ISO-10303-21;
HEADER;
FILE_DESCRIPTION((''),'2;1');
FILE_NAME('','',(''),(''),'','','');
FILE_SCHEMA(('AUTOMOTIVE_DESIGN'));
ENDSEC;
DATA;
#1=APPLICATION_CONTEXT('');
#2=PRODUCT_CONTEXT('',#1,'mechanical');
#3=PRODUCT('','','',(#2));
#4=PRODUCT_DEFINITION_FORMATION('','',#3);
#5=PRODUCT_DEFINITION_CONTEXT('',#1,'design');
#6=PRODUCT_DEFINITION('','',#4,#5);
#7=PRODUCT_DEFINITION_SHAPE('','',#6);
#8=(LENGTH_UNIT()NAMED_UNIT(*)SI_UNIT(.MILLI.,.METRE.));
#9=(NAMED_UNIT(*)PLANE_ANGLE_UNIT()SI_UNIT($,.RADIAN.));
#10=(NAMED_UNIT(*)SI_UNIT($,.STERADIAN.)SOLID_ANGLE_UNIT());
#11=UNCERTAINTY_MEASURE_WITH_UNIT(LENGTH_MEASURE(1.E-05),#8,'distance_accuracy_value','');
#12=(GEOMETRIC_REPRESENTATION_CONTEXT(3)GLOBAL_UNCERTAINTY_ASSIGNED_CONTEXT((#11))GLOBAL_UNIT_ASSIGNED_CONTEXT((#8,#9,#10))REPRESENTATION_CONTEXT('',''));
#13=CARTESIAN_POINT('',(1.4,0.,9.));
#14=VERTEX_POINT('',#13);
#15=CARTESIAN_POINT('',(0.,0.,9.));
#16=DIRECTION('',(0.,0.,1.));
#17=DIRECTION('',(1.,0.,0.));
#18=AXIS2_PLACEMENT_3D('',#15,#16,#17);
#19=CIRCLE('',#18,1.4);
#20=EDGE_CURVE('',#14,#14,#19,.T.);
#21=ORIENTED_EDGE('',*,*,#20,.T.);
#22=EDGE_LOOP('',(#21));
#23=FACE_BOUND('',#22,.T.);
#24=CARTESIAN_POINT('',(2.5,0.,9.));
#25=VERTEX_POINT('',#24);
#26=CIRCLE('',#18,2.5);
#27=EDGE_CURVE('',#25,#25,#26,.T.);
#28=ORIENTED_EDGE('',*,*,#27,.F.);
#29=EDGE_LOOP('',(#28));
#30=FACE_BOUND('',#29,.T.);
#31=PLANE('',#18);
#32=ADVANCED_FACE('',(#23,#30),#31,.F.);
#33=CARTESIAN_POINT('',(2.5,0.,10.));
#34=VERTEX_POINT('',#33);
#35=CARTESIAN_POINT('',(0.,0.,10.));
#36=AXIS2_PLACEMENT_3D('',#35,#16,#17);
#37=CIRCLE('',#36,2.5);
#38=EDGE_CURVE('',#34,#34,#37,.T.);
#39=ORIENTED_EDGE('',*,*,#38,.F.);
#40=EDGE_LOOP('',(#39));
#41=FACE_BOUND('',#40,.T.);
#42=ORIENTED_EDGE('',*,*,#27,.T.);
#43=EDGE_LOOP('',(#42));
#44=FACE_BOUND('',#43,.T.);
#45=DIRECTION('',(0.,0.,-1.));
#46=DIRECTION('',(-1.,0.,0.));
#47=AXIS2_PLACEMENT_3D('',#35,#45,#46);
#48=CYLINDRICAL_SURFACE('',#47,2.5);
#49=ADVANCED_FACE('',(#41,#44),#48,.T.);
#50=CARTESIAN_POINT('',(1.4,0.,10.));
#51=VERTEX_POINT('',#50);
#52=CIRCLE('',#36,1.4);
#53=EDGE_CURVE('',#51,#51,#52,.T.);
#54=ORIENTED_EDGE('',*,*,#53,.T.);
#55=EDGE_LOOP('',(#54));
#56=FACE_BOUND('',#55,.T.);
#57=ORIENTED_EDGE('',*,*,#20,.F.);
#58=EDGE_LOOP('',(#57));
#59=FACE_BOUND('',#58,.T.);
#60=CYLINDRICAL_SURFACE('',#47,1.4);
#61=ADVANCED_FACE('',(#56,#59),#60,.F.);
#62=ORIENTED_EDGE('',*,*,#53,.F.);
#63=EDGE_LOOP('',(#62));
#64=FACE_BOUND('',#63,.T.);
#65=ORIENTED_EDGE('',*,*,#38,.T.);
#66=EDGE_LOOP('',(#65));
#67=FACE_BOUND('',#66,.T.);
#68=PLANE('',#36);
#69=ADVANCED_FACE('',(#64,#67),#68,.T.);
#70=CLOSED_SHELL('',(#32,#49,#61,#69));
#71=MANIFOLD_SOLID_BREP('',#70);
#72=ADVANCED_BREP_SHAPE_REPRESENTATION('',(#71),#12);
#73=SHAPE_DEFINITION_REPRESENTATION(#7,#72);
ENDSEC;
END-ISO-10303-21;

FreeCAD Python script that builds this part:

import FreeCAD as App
import Part
import Sketcher

V = App.Vector
Q = App.Units.Quantity

doc = App.newDocument("Part")
params = doc.addObject("Spreadsheet::Sheet", "Params")
for row, (alias, value) in enumerate([
    ("sketch1_diameter", "5 mm"),
    ("sketch1_diameter2", "2.8 mm"),
    ("pad1_length", "1 mm"),
], start=1):
    params.set(f"A{row}", alias)
    params.set(f"B{row}", "=" + value)
    params.setAlias(f"B{row}", alias)

body = doc.addObject("PartDesign::Body", "Body")

# Sketch on XY plane
sketch1 = doc.addObject("Sketcher::SketchObject", "Sketch")
body.addObject(sketch1)
sketch1.AttachmentSupport = (doc.XY_Plane, [""])
sketch1.MapMode = "FlatFace"
sketch1.AttachmentOffset = App.Placement(V(0, 0, 9), App.Rotation())
sketch1.addGeometry(Part.Circle(V(0, 0, 0), V(0, 0, 1), 2.5), False)
sketch1.addGeometry(Part.Circle(V(0, 0, 0), V(0, 0, 1), 1.4), False)
sketch1.addConstraint(Sketcher.Constraint("Coincident", 0, 3, -1, 1))
sketch1.addConstraint(Sketcher.Constraint("Coincident", 1, 3, -1, 1))
sketch1.addConstraint(Sketcher.Constraint("Diameter", 0, Q("5 mm")))
sketch1.addConstraint(Sketcher.Constraint("Diameter", 1, Q("2.8 mm")))
sketch1.setExpression("Constraints[2]", "Params.sketch1_diameter")
sketch1.setExpression("Constraints[3]", "Params.sketch1_diameter2")
pad1 = doc.addObject("PartDesign::Pad", "Pad")
body.addObject(pad1)
pad1.Profile = sketch1
pad1.setExpression("Length", "Params.pad1_length")

doc.recompute()
